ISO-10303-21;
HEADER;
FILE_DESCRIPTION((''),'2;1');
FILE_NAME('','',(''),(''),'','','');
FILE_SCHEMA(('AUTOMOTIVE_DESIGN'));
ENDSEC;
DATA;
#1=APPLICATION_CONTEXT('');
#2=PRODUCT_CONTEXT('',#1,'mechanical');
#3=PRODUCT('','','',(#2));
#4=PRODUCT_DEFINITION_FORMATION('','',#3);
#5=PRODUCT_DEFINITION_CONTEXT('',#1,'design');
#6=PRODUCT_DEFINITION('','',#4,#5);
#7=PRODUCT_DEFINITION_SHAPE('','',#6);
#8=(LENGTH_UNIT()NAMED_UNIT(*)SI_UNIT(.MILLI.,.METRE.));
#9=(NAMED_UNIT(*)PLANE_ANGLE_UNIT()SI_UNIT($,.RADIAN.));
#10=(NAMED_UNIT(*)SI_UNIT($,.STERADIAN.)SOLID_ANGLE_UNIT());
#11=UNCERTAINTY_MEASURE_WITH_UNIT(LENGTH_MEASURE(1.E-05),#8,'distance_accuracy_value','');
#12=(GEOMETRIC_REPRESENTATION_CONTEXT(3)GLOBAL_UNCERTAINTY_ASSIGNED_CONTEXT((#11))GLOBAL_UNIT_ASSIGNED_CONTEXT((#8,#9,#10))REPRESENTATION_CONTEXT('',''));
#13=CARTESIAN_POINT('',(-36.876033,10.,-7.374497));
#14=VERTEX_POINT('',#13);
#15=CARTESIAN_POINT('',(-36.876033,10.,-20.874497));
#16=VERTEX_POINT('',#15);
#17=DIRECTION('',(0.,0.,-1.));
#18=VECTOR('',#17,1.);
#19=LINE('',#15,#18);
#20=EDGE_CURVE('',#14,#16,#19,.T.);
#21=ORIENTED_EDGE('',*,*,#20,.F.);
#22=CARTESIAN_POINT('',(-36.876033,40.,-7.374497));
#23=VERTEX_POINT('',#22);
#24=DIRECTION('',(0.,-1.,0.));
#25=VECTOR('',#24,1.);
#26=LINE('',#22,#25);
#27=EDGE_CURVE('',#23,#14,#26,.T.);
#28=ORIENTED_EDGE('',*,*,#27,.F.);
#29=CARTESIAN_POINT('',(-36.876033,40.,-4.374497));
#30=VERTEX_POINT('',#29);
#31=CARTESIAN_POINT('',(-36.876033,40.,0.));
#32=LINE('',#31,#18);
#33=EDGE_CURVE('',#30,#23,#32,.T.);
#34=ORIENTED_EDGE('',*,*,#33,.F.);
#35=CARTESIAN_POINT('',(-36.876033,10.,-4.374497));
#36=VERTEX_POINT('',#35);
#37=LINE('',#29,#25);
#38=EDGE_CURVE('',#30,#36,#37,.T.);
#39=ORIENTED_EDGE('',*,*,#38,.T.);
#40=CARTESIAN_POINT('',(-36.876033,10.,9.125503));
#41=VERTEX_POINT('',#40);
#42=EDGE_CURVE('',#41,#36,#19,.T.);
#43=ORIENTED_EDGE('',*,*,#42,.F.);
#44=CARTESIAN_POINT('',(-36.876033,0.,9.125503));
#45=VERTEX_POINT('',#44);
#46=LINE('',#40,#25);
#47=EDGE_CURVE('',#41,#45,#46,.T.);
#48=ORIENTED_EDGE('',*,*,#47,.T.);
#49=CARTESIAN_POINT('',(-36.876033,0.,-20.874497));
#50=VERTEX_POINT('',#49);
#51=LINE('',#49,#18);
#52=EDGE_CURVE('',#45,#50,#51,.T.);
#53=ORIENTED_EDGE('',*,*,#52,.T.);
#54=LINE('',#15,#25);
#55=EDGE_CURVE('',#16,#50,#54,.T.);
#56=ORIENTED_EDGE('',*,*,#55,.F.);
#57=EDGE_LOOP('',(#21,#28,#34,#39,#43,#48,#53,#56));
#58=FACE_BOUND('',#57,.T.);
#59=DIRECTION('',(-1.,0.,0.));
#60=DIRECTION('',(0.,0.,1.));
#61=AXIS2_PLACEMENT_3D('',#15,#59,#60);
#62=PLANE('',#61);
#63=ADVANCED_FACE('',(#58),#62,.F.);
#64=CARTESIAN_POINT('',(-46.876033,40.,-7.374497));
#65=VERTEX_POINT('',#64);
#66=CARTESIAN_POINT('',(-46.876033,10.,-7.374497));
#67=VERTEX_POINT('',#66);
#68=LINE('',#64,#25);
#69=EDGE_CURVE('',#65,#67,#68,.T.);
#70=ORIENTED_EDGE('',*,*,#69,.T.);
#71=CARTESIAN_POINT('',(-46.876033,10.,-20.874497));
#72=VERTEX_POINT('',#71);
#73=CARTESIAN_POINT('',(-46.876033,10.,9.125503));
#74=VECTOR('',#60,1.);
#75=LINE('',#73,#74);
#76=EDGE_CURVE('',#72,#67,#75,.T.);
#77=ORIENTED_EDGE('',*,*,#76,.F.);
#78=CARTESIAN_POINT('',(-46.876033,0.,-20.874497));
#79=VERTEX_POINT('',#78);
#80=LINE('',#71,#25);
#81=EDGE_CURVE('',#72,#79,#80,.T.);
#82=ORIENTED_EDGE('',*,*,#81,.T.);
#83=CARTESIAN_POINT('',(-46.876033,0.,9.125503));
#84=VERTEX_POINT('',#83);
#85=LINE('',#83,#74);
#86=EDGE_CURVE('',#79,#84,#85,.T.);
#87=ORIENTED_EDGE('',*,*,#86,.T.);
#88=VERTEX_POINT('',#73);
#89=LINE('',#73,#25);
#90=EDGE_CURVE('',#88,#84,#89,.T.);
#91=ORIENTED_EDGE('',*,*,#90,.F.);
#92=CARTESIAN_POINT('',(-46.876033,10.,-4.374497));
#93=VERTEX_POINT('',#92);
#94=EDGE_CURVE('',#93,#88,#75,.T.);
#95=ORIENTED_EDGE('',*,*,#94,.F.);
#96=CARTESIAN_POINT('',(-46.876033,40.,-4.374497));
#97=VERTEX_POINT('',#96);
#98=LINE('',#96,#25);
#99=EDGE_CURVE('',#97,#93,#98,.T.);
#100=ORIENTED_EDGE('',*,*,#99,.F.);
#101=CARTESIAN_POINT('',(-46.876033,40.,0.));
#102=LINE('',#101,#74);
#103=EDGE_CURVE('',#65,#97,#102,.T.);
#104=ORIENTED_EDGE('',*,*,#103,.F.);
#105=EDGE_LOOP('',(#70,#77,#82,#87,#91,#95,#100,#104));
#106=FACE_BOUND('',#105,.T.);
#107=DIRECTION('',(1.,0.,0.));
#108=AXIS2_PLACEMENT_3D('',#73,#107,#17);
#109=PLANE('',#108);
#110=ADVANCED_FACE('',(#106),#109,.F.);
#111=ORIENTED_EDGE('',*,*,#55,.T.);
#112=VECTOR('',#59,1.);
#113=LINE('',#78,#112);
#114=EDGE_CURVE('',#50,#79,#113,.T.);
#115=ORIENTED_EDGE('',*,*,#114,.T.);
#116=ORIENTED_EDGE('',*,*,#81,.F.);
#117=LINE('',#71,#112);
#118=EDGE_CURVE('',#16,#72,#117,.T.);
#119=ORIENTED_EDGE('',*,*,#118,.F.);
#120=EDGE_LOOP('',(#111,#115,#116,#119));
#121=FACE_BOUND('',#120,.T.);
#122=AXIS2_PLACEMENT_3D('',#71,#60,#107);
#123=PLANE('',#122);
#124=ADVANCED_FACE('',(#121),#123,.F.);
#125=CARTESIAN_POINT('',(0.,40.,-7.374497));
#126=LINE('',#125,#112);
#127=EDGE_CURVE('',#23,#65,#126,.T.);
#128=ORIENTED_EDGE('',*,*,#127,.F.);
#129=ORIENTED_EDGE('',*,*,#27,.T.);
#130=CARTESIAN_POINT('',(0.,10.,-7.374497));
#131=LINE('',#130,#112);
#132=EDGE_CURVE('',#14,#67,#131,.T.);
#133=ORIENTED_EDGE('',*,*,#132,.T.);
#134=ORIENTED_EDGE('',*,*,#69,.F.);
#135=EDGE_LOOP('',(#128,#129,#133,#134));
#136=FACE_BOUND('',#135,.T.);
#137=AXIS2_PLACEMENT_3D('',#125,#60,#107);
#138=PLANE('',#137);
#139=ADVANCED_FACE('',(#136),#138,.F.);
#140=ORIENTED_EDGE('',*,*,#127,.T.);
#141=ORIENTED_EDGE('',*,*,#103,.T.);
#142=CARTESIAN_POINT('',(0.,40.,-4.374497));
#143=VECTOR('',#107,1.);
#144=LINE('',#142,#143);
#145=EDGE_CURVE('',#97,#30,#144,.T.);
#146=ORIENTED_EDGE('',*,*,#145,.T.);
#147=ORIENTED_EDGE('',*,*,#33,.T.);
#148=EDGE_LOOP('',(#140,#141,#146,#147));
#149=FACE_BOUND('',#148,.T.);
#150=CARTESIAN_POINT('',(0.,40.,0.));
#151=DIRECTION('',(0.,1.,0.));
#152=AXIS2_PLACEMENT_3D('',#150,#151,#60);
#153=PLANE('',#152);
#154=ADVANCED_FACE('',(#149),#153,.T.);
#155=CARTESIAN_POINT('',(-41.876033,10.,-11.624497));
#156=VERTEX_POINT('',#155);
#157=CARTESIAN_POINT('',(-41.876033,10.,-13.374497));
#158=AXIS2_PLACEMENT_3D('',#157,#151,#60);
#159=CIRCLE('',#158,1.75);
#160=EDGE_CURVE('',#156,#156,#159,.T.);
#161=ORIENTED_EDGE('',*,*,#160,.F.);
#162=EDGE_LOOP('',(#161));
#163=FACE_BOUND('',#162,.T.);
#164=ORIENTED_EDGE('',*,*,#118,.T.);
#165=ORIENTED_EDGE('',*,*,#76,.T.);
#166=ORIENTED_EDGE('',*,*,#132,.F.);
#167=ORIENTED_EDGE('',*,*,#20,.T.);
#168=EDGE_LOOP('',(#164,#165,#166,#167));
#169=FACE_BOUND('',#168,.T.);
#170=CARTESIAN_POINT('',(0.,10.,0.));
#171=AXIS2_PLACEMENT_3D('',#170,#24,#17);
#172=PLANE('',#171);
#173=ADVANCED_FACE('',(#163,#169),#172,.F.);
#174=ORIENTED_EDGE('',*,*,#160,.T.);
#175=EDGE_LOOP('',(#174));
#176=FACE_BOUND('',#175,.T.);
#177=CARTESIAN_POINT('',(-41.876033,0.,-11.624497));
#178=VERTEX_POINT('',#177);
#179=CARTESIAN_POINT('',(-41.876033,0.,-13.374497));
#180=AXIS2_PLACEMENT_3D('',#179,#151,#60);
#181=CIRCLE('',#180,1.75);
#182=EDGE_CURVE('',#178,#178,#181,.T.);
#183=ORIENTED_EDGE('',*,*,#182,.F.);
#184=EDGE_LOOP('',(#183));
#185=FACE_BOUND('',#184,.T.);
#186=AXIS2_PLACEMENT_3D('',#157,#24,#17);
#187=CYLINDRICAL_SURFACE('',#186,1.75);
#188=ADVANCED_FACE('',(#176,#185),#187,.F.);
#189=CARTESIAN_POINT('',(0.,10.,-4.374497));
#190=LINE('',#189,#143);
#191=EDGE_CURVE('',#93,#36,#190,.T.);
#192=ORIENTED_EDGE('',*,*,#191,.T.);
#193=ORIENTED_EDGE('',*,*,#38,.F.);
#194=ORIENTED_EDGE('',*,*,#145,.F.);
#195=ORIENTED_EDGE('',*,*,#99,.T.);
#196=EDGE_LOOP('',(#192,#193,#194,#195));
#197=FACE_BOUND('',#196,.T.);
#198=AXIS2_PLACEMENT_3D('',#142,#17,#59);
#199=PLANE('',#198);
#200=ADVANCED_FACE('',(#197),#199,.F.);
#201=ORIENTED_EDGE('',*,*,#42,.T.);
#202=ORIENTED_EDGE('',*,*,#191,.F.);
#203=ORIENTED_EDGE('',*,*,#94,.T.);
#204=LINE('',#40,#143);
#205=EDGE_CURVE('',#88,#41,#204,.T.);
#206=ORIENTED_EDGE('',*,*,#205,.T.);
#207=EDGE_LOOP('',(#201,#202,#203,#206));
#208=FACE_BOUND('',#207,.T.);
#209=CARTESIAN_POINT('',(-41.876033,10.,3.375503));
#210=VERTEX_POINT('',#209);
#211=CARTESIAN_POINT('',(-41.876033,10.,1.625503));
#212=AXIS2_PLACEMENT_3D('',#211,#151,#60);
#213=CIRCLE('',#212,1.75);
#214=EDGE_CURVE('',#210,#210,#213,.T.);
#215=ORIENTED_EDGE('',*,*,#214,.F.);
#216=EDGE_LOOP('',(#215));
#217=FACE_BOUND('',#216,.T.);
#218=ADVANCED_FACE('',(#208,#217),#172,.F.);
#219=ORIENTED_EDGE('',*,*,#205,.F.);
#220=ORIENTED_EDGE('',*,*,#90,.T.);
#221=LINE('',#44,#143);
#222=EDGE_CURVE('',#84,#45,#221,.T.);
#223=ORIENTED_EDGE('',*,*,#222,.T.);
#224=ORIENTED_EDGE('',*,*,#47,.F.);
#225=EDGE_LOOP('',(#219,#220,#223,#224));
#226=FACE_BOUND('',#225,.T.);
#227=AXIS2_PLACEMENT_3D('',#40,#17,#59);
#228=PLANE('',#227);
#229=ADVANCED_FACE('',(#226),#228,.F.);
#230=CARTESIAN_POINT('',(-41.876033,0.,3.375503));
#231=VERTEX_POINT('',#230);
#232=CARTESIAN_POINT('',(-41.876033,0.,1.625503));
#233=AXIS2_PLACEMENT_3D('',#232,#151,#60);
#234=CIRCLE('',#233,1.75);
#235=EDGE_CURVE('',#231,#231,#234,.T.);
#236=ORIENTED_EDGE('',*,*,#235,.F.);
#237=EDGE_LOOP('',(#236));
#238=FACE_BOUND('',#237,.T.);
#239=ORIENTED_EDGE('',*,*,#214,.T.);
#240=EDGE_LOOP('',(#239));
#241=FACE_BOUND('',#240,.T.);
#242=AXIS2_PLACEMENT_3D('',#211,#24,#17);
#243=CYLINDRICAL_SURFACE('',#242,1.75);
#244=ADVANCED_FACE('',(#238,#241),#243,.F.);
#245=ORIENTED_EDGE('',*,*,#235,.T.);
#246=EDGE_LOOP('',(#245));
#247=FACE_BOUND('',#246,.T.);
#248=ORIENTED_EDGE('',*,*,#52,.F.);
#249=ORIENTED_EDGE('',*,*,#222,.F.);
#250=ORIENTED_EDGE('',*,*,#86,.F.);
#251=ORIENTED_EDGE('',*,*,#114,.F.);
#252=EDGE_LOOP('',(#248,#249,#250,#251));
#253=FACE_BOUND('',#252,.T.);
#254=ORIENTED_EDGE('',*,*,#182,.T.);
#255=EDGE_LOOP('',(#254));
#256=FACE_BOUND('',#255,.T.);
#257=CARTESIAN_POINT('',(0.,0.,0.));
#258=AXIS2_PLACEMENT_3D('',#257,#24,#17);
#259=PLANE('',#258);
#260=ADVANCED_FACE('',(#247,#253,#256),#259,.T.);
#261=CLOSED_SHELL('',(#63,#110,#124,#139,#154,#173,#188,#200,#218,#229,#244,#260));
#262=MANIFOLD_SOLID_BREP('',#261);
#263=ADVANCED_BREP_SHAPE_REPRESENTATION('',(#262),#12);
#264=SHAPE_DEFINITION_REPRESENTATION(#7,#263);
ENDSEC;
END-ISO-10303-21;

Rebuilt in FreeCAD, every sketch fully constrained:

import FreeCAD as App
import Part
import Sketcher

V = App.Vector
Q = App.Units.Quantity


def add_polygon(sketch, points):
    """Adds a closed chain of lines whose ends are joined by coincident constraints."""
    first, n = sketch.GeometryCount, len(points)
    for a, b in zip(points, points[1:] + points[:1]):
        sketch.addGeometry(Part.LineSegment(App.Vector(*a, 0), App.Vector(*b, 0)), False)
    for i in range(n):
        sketch.addConstraint(Sketcher.Constraint("Coincident", first + i, 2, first + (i + 1) % n, 1))

doc = App.newDocument("Part")
body = doc.addObject("PartDesign::Body", "Body")

# Sketch on XZ plane
sketch1 = body.newObject("Sketcher::SketchObject", "Sketch")
sketch1.AttachmentSupport = (doc.getObject("XZ_Plane"), [""])
sketch1.MapMode = "FlatFace"
add_polygon(sketch1, [(-46.876033, -20.874497), (-46.876033, 9.125503), (-36.876033, 9.125503), (-36.876033, -20.874497)])  # lines 0-3
sketch1.addGeometry(Part.Circle(V(-41.876033, 1.625503, 0), V(0, 0, 1), 1.75), False)  # 4
sketch1.addGeometry(Part.Circle(V(-41.876033, -13.374497, 0), V(0, 0, 1), 1.75), False)  # 5
sketch1.addConstraint([
    Sketcher.Constraint("Vertical", 0),
    Sketcher.Constraint("Horizontal", 1),
    Sketcher.Constraint("Vertical", 2),
    Sketcher.Constraint("Horizontal", 3),
    Sketcher.Constraint("Equal", 4, 5),
    Sketcher.Constraint("Vertical", 4, 3, 5, 3),
    Sketcher.Constraint("Diameter", 4, Q("3.5 mm")),
    Sketcher.Constraint("DistanceX", 1, 1, 1, 2, Q("10 mm")),
    Sketcher.Constraint("DistanceY", 0, 1, 0, 2, Q("30 mm")),
    Sketcher.Constraint("DistanceY", 5, 3, 4, 3, Q("15 mm")),
    Sketcher.Constraint("DistanceX", 0, 2, 4, 3, Q("5 mm")),
    Sketcher.Constraint("DistanceY", 4, 3, 0, 2, Q("7.5 mm")),
    Sketcher.Constraint("DistanceX", 4, 3, -1, 1, Q("41.876033 mm")),
    Sketcher.Constraint("DistanceY", -1, 1, 4, 3, Q("1.625503 mm")),
])
pad1 = body.newObject("PartDesign::Pad", "Pad")
pad1.Profile = sketch1
pad1.Length = 10
pad1.Reversed = True

# Sketch on XZ plane
sketch2 = body.newObject("Sketcher::SketchObject", "Sketch001")
sketch2.AttachmentSupport = (doc.getObject("XZ_Plane"), [""])
sketch2.MapMode = "FlatFace"
sketch2.AttachmentOffset = App.Placement(V(0, 0, -10), App.Rotation())
add_polygon(sketch2, [(-46.876033, -7.374497), (-46.876033, -4.374497), (-36.876033, -4.374497), (-36.876033, -7.374497)])  # lines 0-3
sketch2.addConstraint([
    Sketcher.Constraint("Vertical", 0),
    Sketcher.Constraint("Horizontal", 1),
    Sketcher.Constraint("Vertical", 2),
    Sketcher.Constraint("Horizontal", 3),
    Sketcher.Constraint("DistanceX", 1, 1, 1, 2, Q("10 mm")),
    Sketcher.Constraint("DistanceY", 0, 1, 0, 2, Q("3 mm")),
    Sketcher.Constraint("DistanceX", 0, 2, -1, 1, Q("46.876033 mm")),
    Sketcher.Constraint("DistanceY", 0, 2, -1, 1, Q("4.374497 mm")),
])
pad2 = body.newObject("PartDesign::Pad", "Pad001")
pad2.Profile = sketch2
pad2.Length = 30
pad2.Reversed = True

doc.recompute()
